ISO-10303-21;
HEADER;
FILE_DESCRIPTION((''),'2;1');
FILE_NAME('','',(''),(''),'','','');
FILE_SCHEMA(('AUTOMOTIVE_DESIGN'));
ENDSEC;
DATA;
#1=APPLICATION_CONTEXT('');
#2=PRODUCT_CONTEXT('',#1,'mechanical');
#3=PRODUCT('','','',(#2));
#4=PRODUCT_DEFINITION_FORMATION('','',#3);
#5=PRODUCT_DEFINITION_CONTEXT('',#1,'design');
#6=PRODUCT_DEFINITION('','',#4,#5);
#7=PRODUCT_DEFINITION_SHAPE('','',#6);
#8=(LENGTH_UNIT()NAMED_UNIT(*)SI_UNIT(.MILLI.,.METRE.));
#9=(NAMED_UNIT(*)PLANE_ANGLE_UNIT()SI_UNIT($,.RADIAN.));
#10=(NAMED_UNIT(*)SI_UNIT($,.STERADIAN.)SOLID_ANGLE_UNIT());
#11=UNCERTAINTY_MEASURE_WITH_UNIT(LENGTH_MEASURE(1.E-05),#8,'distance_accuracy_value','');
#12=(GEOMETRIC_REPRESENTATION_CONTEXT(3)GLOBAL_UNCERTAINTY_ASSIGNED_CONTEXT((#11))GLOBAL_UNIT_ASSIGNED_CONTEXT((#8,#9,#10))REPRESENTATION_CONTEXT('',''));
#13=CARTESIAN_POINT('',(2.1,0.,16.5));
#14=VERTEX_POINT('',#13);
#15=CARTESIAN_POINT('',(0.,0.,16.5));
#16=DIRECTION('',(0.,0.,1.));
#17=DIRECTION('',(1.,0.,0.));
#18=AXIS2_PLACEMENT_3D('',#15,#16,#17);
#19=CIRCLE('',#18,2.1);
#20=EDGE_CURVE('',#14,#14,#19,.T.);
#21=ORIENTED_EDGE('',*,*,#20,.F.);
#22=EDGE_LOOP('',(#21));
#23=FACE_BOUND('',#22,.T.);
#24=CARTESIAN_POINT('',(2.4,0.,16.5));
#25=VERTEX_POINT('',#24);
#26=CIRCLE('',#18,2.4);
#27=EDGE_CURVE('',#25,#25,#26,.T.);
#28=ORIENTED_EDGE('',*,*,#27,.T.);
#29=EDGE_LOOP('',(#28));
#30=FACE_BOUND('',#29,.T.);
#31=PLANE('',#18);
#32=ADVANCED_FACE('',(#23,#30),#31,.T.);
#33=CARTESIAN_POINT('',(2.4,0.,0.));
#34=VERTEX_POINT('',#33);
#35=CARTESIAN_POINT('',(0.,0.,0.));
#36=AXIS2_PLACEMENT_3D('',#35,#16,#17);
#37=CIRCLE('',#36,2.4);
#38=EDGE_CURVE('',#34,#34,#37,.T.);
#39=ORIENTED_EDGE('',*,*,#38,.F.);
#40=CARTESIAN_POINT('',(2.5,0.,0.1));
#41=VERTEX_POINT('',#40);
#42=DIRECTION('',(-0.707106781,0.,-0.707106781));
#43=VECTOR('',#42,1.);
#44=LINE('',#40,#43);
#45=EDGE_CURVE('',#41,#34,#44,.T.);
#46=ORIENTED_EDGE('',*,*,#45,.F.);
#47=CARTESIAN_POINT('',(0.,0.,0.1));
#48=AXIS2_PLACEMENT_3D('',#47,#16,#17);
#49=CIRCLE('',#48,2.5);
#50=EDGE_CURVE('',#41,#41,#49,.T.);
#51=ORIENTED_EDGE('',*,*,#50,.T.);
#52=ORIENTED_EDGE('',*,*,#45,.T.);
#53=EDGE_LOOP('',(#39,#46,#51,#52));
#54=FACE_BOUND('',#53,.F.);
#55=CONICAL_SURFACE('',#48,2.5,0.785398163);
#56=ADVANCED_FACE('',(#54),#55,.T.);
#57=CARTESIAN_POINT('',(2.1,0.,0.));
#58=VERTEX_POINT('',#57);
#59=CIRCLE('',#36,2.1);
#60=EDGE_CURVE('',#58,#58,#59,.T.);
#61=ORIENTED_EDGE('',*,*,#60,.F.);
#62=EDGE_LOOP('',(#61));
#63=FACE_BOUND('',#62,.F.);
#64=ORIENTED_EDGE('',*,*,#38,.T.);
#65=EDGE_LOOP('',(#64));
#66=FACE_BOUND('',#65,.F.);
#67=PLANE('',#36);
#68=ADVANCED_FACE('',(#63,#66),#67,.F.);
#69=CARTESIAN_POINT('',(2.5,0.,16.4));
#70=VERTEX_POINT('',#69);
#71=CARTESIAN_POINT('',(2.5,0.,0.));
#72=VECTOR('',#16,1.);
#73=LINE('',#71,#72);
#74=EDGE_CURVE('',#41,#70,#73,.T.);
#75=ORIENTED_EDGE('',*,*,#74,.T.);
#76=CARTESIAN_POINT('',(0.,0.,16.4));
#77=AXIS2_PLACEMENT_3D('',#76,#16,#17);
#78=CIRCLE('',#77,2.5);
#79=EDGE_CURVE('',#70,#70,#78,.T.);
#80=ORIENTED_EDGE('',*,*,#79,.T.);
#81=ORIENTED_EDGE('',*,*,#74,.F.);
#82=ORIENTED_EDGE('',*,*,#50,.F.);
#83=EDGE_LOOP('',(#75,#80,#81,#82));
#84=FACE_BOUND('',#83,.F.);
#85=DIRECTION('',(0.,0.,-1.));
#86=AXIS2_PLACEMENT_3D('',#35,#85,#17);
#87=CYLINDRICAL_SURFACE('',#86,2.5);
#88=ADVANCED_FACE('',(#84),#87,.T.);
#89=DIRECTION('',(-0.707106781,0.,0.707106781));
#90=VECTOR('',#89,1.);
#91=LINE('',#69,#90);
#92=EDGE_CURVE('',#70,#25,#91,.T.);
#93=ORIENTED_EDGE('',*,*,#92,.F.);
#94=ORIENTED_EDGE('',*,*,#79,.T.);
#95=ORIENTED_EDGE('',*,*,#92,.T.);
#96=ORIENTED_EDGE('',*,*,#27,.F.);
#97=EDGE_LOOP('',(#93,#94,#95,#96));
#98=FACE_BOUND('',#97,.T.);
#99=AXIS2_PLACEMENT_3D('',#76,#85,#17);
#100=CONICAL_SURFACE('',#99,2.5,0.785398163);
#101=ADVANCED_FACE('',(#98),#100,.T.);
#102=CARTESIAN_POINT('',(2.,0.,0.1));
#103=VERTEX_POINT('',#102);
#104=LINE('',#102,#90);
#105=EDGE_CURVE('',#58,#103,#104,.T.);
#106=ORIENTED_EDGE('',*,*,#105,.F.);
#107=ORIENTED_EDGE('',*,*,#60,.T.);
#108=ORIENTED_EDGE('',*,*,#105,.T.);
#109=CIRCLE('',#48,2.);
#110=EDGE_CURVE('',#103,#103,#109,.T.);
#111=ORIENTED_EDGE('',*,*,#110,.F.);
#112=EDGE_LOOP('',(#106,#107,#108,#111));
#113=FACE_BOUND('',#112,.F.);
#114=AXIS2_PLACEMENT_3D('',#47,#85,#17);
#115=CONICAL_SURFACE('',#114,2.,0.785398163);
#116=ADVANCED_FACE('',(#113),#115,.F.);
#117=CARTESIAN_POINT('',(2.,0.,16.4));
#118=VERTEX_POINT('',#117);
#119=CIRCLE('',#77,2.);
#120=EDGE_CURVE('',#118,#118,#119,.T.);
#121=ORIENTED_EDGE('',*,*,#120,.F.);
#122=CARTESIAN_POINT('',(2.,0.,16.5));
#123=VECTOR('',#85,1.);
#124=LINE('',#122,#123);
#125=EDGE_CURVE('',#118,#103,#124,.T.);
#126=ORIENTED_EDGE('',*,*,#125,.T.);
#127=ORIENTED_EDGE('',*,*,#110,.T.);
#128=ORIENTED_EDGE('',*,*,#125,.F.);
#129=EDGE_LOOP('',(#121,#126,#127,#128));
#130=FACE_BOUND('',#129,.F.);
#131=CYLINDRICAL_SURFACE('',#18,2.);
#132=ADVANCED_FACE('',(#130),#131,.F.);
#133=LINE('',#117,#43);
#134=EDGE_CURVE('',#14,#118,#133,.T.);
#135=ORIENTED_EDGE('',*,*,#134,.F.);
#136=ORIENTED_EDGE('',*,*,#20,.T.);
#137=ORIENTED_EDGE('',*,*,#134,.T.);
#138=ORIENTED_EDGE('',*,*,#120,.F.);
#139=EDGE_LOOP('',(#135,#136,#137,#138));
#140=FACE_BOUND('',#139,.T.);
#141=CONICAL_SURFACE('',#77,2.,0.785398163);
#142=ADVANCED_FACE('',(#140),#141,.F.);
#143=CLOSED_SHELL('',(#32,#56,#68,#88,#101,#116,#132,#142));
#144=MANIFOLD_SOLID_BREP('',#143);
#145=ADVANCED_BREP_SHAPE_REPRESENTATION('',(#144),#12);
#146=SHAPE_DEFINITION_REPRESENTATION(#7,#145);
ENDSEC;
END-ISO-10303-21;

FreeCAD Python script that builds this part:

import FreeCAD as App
import Part
import Sketcher

V = App.Vector


def edges_at(feature, points):
    """Names of the edges that pass closest to the given points."""
    edges = feature.Shape.Edges
    near = lambda p: min(range(len(edges)), key=lambda i: edges[i].distToShape(Part.Vertex(*p))[0])
    return sorted({f"Edge{near(p) + 1}" for p in points})

doc = App.newDocument("Part")
params = doc.addObject("Spreadsheet::Sheet", "Params")
for row, (alias, value) in enumerate([
    ("sketch1_diameter", "5 mm"),
    ("pad1_length", "16.5 mm"),
    ("sketch2_diameter", "4 mm"),
    ("chamfer_size", "0.1 mm"),
], start=1):
    params.set(f"A{row}", alias)
    params.set(f"B{row}", "=" + value)
    params.setAlias(f"B{row}", alias)

body = doc.addObject("PartDesign::Body", "Body")

sketch1 = body.newObject("Sketcher::SketchObject", "Sketch")
sketch1.AttachmentSupport = (doc.getObject("XY_Plane"), [""])
sketch1.MapMode = "FlatFace"
sketch1.addGeometry(Part.Circle(V(0, 0, 0), V(0, 0, 1), 2.5), False)
sketch1.addConstraint([
    Sketcher.Constraint("Coincident", 0, 3, -1, 1),
    Sketcher.Constraint("Diameter", 0, 5.0),
])
sketch1.setExpression("Constraints[1]", "Params.sketch1_diameter")
pad1 = body.newObject("PartDesign::Pad", "Pad")
pad1.Profile = sketch1
pad1.setExpression("Length", "Params.pad1_length")

sketch2 = body.newObject("Sketcher::SketchObject", "Sketch001")
sketch2.AttachmentSupport = (doc.getObject("XY_Plane"), [""])
sketch2.MapMode = "FlatFace"
sketch2.AttachmentOffset = App.Placement(V(0, 0, 16.5), App.Rotation())
sketch2.addGeometry(Part.Circle(V(0, 0, 0), V(0, 0, 1), 2), False)
sketch2.addConstraint([
    Sketcher.Constraint("Coincident", 0, 3, -1, 1),
    Sketcher.Constraint("Diameter", 0, 4.0),
])
sketch2.setExpression("Constraints[1]", "Params.sketch2_diameter")
pocket1 = body.newObject("PartDesign::Pocket", "Pocket")
pocket1.Profile = sketch2
pocket1.Type = "ThroughAll"
doc.recompute()

chamfer = body.newObject("PartDesign::Chamfer", "Chamfer")
chamfer.Base = (pocket1, edges_at(pocket1, [
    (-2, 0, 0),
    (-2.5, 0, 0),
    (-2.5, 0, 16.5),
    (-2, 0, 16.5),
]))
chamfer.setExpression("Size", "Params.chamfer_size")

doc.recompute()
